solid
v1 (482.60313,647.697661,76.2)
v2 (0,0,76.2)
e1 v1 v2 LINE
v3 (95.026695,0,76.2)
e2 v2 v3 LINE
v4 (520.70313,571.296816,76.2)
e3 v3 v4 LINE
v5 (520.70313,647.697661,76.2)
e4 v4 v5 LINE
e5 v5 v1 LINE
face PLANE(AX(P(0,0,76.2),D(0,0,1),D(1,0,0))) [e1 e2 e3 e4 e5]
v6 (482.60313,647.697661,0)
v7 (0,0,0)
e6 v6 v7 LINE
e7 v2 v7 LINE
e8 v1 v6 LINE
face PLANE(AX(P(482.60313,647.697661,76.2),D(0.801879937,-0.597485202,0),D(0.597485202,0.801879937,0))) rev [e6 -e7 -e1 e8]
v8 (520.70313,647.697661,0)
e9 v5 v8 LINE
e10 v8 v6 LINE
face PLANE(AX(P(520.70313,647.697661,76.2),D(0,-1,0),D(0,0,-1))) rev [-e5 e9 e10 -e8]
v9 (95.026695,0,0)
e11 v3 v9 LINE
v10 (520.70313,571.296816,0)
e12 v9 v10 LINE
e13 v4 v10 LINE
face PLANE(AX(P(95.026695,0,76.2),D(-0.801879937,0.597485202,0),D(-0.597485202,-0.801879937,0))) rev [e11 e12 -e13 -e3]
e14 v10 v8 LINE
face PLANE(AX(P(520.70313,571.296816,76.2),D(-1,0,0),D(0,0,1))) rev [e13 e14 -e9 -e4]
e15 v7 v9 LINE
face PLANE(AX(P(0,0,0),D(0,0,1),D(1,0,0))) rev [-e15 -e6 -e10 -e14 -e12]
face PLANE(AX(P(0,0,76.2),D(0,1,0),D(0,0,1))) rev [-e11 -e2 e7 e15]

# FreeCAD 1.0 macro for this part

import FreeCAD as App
import Part
import Sketcher

V = App.Vector
Q = App.Units.Quantity


def add_polygon(sketch, points):
    """Adds a closed chain of lines whose ends are joined by coincident constraints."""
    first, n = sketch.GeometryCount, len(points)
    for a, b in zip(points, points[1:] + points[:1]):
        sketch.addGeometry(Part.LineSegment(App.Vector(*a, 0), App.Vector(*b, 0)), False)
    for i in range(n):
        sketch.addConstraint(Sketcher.Constraint("Coincident", first + i, 2, first + (i + 1) % n, 1))

doc = App.newDocument("Part")
body = doc.addObject("PartDesign::Body", "Body")

# Sketch on XY plane
sketch1 = body.newObject("Sketcher::SketchObject", "Sketch")
sketch1.AttachmentSupport = (doc.getObject("XY_Plane"), [""])
sketch1.MapMode = "FlatFace"
add_polygon(sketch1, [(0, 0), (95, 0), (521, 571), (521, 648), (483, 648)])  # lines 0-4
sketch1.addConstraint([
    Sketcher.Constraint("Horizontal", 0),
    Sketcher.Constraint("Vertical", 2),
    Sketcher.Constraint("Horizontal", 3),
    Sketcher.Constraint("Coincident", 4, 2, -1, 1),
    Sketcher.Constraint("Parallel", 1, 4),
    Sketcher.Constraint("DistanceX", 3, 2, 3, 1, Q("1.5 in")),
    Sketcher.Constraint("Angle", 1, Q("53.31 deg")),
    Sketcher.Constraint("DistanceX", 0, 1, 0, 2, Q("95.026695 mm")),
    Sketcher.Constraint("DistanceX", -1, 1, 1, 2, Q("520.70313 mm")),
])
pad1 = body.newObject("PartDesign::Pad", "Pad")
pad1.Profile = sketch1
pad1.Length = Q("3 in")

doc.recompute()
